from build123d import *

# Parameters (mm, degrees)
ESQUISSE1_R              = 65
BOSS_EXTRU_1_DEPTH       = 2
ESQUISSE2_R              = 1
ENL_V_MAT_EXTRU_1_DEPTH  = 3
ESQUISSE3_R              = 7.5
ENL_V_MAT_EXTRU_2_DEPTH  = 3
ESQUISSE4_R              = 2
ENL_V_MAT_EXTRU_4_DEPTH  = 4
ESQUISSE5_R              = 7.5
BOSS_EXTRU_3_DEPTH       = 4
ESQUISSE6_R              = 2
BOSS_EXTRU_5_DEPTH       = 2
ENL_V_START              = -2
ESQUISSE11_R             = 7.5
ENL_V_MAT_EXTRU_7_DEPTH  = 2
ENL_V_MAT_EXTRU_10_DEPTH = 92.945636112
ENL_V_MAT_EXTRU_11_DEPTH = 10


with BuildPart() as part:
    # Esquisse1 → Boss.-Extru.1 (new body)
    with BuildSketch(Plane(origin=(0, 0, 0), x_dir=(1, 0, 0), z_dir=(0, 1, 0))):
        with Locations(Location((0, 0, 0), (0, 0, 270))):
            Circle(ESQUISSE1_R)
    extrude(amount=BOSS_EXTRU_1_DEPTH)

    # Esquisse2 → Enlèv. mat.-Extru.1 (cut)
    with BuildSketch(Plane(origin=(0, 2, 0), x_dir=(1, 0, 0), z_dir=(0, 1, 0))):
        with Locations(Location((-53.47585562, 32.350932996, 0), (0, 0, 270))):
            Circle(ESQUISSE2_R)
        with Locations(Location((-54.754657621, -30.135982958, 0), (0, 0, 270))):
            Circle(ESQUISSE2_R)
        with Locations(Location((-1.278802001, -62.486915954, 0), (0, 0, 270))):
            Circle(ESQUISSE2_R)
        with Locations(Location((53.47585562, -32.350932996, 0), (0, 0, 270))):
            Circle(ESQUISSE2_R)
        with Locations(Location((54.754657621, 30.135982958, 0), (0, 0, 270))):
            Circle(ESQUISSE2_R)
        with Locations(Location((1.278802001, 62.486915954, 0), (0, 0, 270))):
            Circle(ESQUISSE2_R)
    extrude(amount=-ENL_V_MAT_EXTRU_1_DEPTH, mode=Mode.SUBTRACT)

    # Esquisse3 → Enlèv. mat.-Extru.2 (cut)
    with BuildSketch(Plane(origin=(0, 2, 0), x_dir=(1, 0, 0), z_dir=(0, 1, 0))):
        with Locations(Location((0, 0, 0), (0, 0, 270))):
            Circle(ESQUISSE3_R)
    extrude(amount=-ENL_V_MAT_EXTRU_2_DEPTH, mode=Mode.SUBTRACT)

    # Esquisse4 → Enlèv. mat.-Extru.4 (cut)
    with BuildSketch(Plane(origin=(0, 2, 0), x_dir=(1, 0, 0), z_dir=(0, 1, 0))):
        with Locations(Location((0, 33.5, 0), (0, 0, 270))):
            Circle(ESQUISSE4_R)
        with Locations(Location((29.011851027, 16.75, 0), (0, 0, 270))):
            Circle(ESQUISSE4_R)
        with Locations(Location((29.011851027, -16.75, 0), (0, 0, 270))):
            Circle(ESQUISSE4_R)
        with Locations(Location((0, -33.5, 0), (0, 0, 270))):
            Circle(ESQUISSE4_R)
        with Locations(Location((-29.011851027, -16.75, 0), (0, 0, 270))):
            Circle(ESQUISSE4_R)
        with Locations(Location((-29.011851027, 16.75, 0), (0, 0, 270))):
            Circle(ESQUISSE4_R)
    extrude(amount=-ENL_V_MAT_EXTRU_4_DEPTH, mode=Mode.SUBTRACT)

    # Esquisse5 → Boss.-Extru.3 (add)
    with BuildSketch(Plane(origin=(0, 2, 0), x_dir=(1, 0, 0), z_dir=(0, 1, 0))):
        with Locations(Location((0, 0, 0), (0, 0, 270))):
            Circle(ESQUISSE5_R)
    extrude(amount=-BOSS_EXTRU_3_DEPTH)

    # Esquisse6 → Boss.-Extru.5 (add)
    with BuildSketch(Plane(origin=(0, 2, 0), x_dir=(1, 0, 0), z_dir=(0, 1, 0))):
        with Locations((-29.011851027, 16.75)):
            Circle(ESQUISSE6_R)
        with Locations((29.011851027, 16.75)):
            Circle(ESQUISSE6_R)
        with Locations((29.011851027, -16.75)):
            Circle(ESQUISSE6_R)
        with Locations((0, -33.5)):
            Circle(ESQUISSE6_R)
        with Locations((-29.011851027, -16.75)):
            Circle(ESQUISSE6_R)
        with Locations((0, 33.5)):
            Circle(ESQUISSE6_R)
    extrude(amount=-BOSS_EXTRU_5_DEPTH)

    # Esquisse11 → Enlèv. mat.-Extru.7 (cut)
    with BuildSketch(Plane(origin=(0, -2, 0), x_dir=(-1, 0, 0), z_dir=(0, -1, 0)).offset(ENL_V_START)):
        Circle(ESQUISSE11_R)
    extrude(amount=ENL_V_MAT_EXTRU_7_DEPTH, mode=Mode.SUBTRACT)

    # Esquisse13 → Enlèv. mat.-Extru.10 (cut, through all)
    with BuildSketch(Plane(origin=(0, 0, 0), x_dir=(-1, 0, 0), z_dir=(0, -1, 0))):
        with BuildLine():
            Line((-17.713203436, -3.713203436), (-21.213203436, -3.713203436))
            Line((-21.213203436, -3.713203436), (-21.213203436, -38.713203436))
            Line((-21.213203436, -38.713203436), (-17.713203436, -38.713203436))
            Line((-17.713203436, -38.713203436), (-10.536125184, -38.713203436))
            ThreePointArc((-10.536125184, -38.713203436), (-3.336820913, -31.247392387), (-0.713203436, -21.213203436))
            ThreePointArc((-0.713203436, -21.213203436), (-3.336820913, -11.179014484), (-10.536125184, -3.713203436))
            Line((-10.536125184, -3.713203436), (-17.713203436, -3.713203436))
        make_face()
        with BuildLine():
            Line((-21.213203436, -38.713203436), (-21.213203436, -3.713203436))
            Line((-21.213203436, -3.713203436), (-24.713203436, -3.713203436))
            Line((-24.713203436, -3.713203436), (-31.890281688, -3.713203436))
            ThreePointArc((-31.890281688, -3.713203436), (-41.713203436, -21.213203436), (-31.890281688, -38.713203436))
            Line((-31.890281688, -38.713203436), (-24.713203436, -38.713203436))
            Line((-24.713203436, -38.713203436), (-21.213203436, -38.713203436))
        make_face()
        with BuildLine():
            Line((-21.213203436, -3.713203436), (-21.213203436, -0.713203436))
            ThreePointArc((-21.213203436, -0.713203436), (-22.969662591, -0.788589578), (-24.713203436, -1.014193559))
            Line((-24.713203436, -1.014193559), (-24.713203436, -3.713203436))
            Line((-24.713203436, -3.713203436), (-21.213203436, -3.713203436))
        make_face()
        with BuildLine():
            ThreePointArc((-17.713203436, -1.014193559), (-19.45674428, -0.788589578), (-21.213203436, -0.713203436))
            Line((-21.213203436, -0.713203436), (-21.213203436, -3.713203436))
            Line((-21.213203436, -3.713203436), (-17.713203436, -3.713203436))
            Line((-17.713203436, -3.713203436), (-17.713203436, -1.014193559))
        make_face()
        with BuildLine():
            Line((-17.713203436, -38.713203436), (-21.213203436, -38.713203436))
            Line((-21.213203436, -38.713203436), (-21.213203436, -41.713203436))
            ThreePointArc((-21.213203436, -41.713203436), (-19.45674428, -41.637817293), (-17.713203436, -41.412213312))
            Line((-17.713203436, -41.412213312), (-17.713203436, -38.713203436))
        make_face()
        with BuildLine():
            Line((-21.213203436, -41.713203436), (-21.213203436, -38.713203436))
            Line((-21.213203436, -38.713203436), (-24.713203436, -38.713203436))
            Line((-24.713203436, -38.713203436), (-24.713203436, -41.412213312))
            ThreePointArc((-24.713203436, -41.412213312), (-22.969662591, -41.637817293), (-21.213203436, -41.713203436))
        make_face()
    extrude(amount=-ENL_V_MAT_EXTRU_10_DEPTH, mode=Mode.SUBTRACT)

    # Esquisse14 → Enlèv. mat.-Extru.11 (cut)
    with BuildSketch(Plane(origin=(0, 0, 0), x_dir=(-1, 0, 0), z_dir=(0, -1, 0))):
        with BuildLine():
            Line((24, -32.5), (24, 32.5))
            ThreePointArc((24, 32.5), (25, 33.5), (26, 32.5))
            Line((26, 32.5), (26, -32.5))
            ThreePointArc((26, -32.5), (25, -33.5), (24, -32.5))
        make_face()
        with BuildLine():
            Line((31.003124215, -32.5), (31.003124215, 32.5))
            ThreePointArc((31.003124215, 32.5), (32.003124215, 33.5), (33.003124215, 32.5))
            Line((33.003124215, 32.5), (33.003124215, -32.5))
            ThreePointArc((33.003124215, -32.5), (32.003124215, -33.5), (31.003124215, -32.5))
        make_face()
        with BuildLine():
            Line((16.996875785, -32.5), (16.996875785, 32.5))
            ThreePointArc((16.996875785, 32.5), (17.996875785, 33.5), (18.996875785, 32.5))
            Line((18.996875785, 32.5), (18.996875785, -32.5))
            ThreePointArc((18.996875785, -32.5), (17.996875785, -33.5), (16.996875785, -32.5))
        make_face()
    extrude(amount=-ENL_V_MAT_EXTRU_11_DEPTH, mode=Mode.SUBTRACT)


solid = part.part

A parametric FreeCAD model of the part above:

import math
import FreeCAD as App
import Part
import Sketcher
Q = App.Units.Quantity

doc = App.newDocument("Part")
body = doc.addObject("PartDesign::Body", "Body")

# Sketch on XZ plane
sketch1 = doc.addObject("Sketcher::SketchObject", "Sketch")
body.addObject(sketch1)
sketch1.AttachmentSupport = (doc.XZ_Plane, [""])
sketch1.MapMode = "FlatFace"
sketch1.addGeometry(Part.Circle(App.Vector(0, 0, 0), App.Vector(0, 0, 1), 65), False)
sketch1.addConstraint(Sketcher.Constraint("Coincident", 0, 3, -1, 1))
sketch1.addConstraint(Sketcher.Constraint("Diameter", 0, Q("130 mm")))
pad1 = doc.addObject("PartDesign::Pad", "Pad")
body.addObject(pad1)
pad1.Profile = sketch1
pad1.Length = 2
pad1.Reversed = True

# Sketch on XZ plane
sketch2 = doc.addObject("Sketcher::SketchObject", "Sketch001")
body.addObject(sketch2)
sketch2.AttachmentSupport = (doc.XZ_Plane, [""])
sketch2.MapMode = "FlatFace"
sketch2.AttachmentOffset = App.Placement(App.Vector(0, 0, -2), App.Rotation())
sketch2.addGeometry(Part.Circle(App.Vector(-53.475856, -32.350933, 0), App.Vector(0, 0, 1), 1), False)
sketch2.addGeometry(Part.Circle(App.Vector(-54.754658, 30.135983, 0), App.Vector(0, 0, 1), 1), False)
sketch2.addGeometry(Part.Circle(App.Vector(-1.278802, 62.486916, 0), App.Vector(0, 0, 1), 1), False)
sketch2.addGeometry(Part.Circle(App.Vector(53.475856, 32.350933, 0), App.Vector(0, 0, 1), 1), False)
sketch2.addGeometry(Part.Circle(App.Vector(54.754658, -30.135983, 0), App.Vector(0, 0, 1), 1), False)
sketch2.addGeometry(Part.Circle(App.Vector(1.278802, -62.486916, 0), App.Vector(0, 0, 1), 1), False)
sketch2.addConstraint(Sketcher.Constraint("Equal", 0, 1))
sketch2.addConstraint(Sketcher.Constraint("Equal", 1, 2))
sketch2.addConstraint(Sketcher.Constraint("Equal", 2, 3))
sketch2.addConstraint(Sketcher.Constraint("Equal", 3, 4))
sketch2.addConstraint(Sketcher.Constraint("Equal", 4, 5))
sketch2.addConstraint(Sketcher.Constraint("Symmetric", 0, 3, 3, 3, -1, 1))
sketch2.addConstraint(Sketcher.Constraint("Symmetric", 1, 3, 4, 3, -1, 1))
sketch2.addConstraint(Sketcher.Constraint("Symmetric", 2, 3, 5, 3, -1, 1))
sketch2.addConstraint(Sketcher.Constraint("Diameter", 0, Q("2 mm")))
sketch2.addConstraint(Sketcher.Constraint("DistanceY", 4, 3, 2, 3, Q("92.622899 mm")))
sketch2.addConstraint(Sketcher.Constraint("DistanceY", 0, 3, 2, 3, Q("94.837849 mm")))
sketch2.addConstraint(Sketcher.Constraint("DistanceX", 0, 3, 3, 3, Q("106.951711 mm")))
sketch2.addConstraint(Sketcher.Constraint("DistanceX", 2, 3, 4, 3, Q("56.03346 mm")))
sketch2.addConstraint(Sketcher.Constraint("DistanceY", 5, 3, 2, 3, Q("124.973832 mm")))
sketch2.addConstraint(Sketcher.Constraint("DistanceX", 1, 3, -1, 1, Q("54.754658 mm")))
pocket1 = doc.addObject("PartDesign::Pocket", "Pocket")
body.addObject(pocket1)
pocket1.Profile = sketch2
pocket1.Length = 3
pocket1.Reversed = True

# Sketch on XZ plane
sketch3 = doc.addObject("Sketcher::SketchObject", "Sketch002")
body.addObject(sketch3)
sketch3.AttachmentSupport = (doc.XZ_Plane, [""])
sketch3.MapMode = "FlatFace"
sketch3.AttachmentOffset = App.Placement(App.Vector(0, 0, -2), App.Rotation())
sketch3.addGeometry(Part.Circle(App.Vector(0, 0, 0), App.Vector(0, 0, 1), 7.5), False)
sketch3.addConstraint(Sketcher.Constraint("Coincident", 0, 3, -1, 1))
sketch3.addConstraint(Sketcher.Constraint("Diameter", 0, Q("15 mm")))
pocket2 = doc.addObject("PartDesign::Pocket", "Pocket001")
body.addObject(pocket2)
pocket2.Profile = sketch3
pocket2.Length = 3
pocket2.Reversed = True

# Sketch on XZ plane
sketch4 = doc.addObject("Sketcher::SketchObject", "Sketch003")
body.addObject(sketch4)
sketch4.AttachmentSupport = (doc.XZ_Plane, [""])
sketch4.MapMode = "FlatFace"
sketch4.AttachmentOffset = App.Placement(App.Vector(0, 0, -2), App.Rotation())
sketch4.addGeometry(Part.Circle(App.Vector(0, -33.5, 0), App.Vector(0, 0, 1), 2), False)
sketch4.addGeometry(Part.Circle(App.Vector(29.011851, -16.75, 0), App.Vector(0, 0, 1), 2), False)
sketch4.addGeometry(Part.Circle(App.Vector(29.011851, 16.75, 0), App.Vector(0, 0, 1), 2), False)
sketch4.addGeometry(Part.Circle(App.Vector(0, 33.5, 0), App.Vector(0, 0, 1), 2), False)
sketch4.addGeometry(Part.Circle(App.Vector(-29.011851, 16.75, 0), App.Vector(0, 0, 1), 2), False)
sketch4.addGeometry(Part.Circle(App.Vector(-29.011851, -16.75, 0), App.Vector(0, 0, 1), 2), False)
sketch4.addConstraint(Sketcher.Constraint("Equal", 0, 1))
sketch4.addConstraint(Sketcher.Constraint("Equal", 1, 2))
sketch4.addConstraint(Sketcher.Constraint("Equal", 2, 3))
sketch4.addConstraint(Sketcher.Constraint("Equal", 3, 4))
sketch4.addConstraint(Sketcher.Constraint("Equal", 4, 5))
sketch4.addConstraint(Sketcher.Constraint("Symmetric", 0, 3, 3, 3, -1, 1))
sketch4.addConstraint(Sketcher.Constraint("Symmetric", 1, 3, 4, 3, -1, 1))
sketch4.addConstraint(Sketcher.Constraint("Symmetric", 2, 3, 5, 3, -1, 1))
sketch4.addConstraint(Sketcher.Constraint("Symmetric", 2, 3, 4, 3, -2))
sketch4.addConstraint(Sketcher.Constraint("PointOnObject", 0, 3, -2))
sketch4.addConstraint(Sketcher.Constraint("Diameter", 0, Q("4 mm")))
sketch4.addConstraint(Sketcher.Constraint("DistanceY", 0, 3, 3, 3, Q("67 mm")))
sketch4.addConstraint(Sketcher.Constraint("DistanceY", 1, 3, 2, 3, Q("33.5 mm")))
sketch4.addConstraint(Sketcher.Constraint("DistanceX", -1, 1, 1, 3, Q("29.011851 mm")))
pocket3 = doc.addObject("PartDesign::Pocket", "Pocket002")
body.addObject(pocket3)
pocket3.Profile = sketch4
pocket3.Length = 4
pocket3.Reversed = True

# Sketch on XZ plane
sketch5 = doc.addObject("Sketcher::SketchObject", "Sketch004")
body.addObject(sketch5)
sketch5.AttachmentSupport = (doc.XZ_Plane, [""])
sketch5.MapMode = "FlatFace"
sketch5.AttachmentOffset = App.Placement(App.Vector(0, 0, -2), App.Rotation())
sketch5.addGeometry(Part.Circle(App.Vector(0, 0, 0), App.Vector(0, 0, 1), 7.5), False)
sketch5.addConstraint(Sketcher.Constraint("Coincident", 0, 3, -1, 1))
sketch5.addConstraint(Sketcher.Constraint("Diameter", 0, Q("15 mm")))
pad2 = doc.addObject("PartDesign::Pad", "Pad001")
body.addObject(pad2)
pad2.Profile = sketch5
pad2.Length = 4

# Sketch on XZ plane
sketch6 = doc.addObject("Sketcher::SketchObject", "Sketch005")
body.addObject(sketch6)
sketch6.AttachmentSupport = (doc.XZ_Plane, [""])
sketch6.MapMode = "FlatFace"
sketch6.AttachmentOffset = App.Placement(App.Vector(0, 0, -2), App.Rotation())
sketch6.addGeometry(Part.Circle(App.Vector(-29.011851, -16.75, 0), App.Vector(0, 0, 1), 2), False)
sketch6.addGeometry(Part.Circle(App.Vector(29.011851, -16.75, 0), App.Vector(0, 0, 1), 2), False)
sketch6.addGeometry(Part.Circle(App.Vector(29.011851, 16.75, 0), App.Vector(0, 0, 1), 2), False)
sketch6.addGeometry(Part.Circle(App.Vector(0, 33.5, 0), App.Vector(0, 0, 1), 2), False)
sketch6.addGeometry(Part.Circle(App.Vector(-29.011851, 16.75, 0), App.Vector(0, 0, 1), 2), False)
sketch6.addGeometry(Part.Circle(App.Vector(0, -33.5, 0), App.Vector(0, 0, 1), 2), False)
sketch6.addConstraint(Sketcher.Constraint("Equal", 0, 1))
sketch6.addConstraint(Sketcher.Constraint("Equal", 1, 2))
sketch6.addConstraint(Sketcher.Constraint("Equal", 2, 3))
sketch6.addConstraint(Sketcher.Constraint("Equal", 3, 4))
sketch6.addConstraint(Sketcher.Constraint("Equal", 4, 5))
sketch6.addConstraint(Sketcher.Constraint("Symmetric", 0, 3, 2, 3, -1, 1))
sketch6.addConstraint(Sketcher.Constraint("Symmetric", 1, 3, 4, 3, -1, 1))
sketch6.addConstraint(Sketcher.Constraint("Symmetric", 3, 3, 5, 3, -1, 1))
sketch6.addConstraint(Sketcher.Constraint("Symmetric", 0, 3, 1, 3, -2))
sketch6.addConstraint(Sketcher.Constraint("PointOnObject", 3, 3, -2))
sketch6.addConstraint(Sketcher.Constraint("Diameter", 0, Q("4 mm")))
sketch6.addConstraint(Sketcher.Constraint("DistanceY", 5, 3, 3, 3, Q("67 mm")))
sketch6.addConstraint(Sketcher.Constraint("DistanceY", 1, 3, 2, 3, Q("33.5 mm")))
sketch6.addConstraint(Sketcher.Constraint("DistanceX", 0, 3, -1, 1, Q("29.011851 mm")))
pad3 = doc.addObject("PartDesign::Pad", "Pad002")
body.addObject(pad3)
pad3.Profile = sketch6
pad3.Length = 2

# Sketch on XZ plane
sketch7 = doc.addObject("Sketcher::SketchObject", "Sketch006")
body.addObject(sketch7)
sketch7.AttachmentSupport = (doc.XZ_Plane, [""])
sketch7.MapMode = "FlatFace"
sketch7.addGeometry(Part.Circle(App.Vector(0, 0, 0), App.Vector(0, 0, 1), 7.5), False)
sketch7.addConstraint(Sketcher.Constraint("Coincident", 0, 3, -1, 1))
sketch7.addConstraint(Sketcher.Constraint("Diameter", 0, Q("15 mm")))
pocket4 = doc.addObject("PartDesign::Pocket", "Pocket003")
body.addObject(pocket4)
pocket4.Profile = sketch7
pocket4.Length = 2
pocket4.Reversed = True

# Sketch on XZ plane
sketch8 = doc.addObject("Sketcher::SketchObject", "Sketch007")
body.addObject(sketch8)
sketch8.AttachmentSupport = (doc.XZ_Plane, [""])
sketch8.MapMode = "FlatFace"
sketch8.addGeometry(Part.ArcOfCircle(Part.Circle(App.Vector(21.213203, 21.213203, 0), App.Vector(0, 0, 1), 20.5), math.radians(121.38815), math.radians(180)), False)
sketch8.addGeometry(Part.ArcOfCircle(Part.Circle(App.Vector(21.213203, 21.213203, 0), App.Vector(0, 0, 1), 20.5), math.radians(180), math.radians(238.61185)), False)
sketch8.addGeometry(Part.LineSegment(App.Vector(10.536125, 3.713203, 0), App.Vector(17.713203, 3.713203, 0)), False)
sketch8.addGeometry(Part.LineSegment(App.Vector(17.713203, 3.713203, 0), App.Vector(17.713203, 1.014194, 0)), False)
sketch8.addGeometry(Part.ArcOfCircle(Part.Circle(App.Vector(21.213203, 21.213203, 0), App.Vector(0, 0, 1), 20.5), math.radians(-99.830365), math.radians(-90)), False)
sketch8.addGeometry(Part.ArcOfCircle(Part.Circle(App.Vector(21.213203, 21.213203, 0), App.Vector(0, 0, 1), 20.5), math.radians(-90), math.radians(-80.169635)), False)
sketch8.addGeometry(Part.LineSegment(App.Vector(24.713203, 1.014194, 0), App.Vector(24.713203, 3.713203, 0)), False)
sketch8.addGeometry(Part.LineSegment(App.Vector(24.713203, 3.713203, 0), App.Vector(31.890282, 3.713203, 0)), False)
sketch8.addGeometry(Part.ArcOfCircle(Part.Circle(App.Vector(21.213203, 21.213203, 0), App.Vector(0, 0, 1), 20.5), math.radians(-58.61185), math.radians(58.61185)), False)
sketch8.addGeometry(Part.LineSegment(App.Vector(31.890282, 38.713203, 0), App.Vector(24.713203, 38.713203, 0)), False)
sketch8.addGeometry(Part.LineSegment(App.Vector(24.713203, 38.713203, 0), App.Vector(24.713203, 41.412213, 0)), False)
sketch8.addGeometry(Part.ArcOfCircle(Part.Circle(App.Vector(21.213203, 21.213203, 0), App.Vector(0, 0, 1), 20.5), math.radians(80.169635), math.radians(90)), False)
sketch8.addGeometry(Part.ArcOfCircle(Part.Circle(App.Vector(21.213203, 21.213203, 0), App.Vector(0, 0, 1), 20.5), math.radians(90), math.radians(99.830365)), False)
sketch8.addGeometry(Part.LineSegment(App.Vector(17.713203, 41.412213, 0), App.Vector(17.713203, 38.713203, 0)), False)
sketch8.addGeometry(Part.LineSegment(App.Vector(17.713203, 38.713203, 0), App.Vector(10.536125, 38.713203, 0)), False)
sketch8.addConstraint(Sketcher.Constraint("Tangent", 0, 2, 1, 1))
sketch8.addConstraint(Sketcher.Constraint("Coincident", 1, 2, 2, 1))
sketch8.addConstraint(Sketcher.Constraint("Coincident", 2, 2, 3, 1))
sketch8.addConstraint(Sketcher.Constraint("Coincident", 3, 2, 4, 1))
sketch8.addConstraint(Sketcher.Constraint("Tangent", 4, 2, 5, 1))
sketch8.addConstraint(Sketcher.Constraint("Coincident", 5, 2, 6, 1))
sketch8.addConstraint(Sketcher.Constraint("Coincident", 6, 2, 7, 1))
sketch8.addConstraint(Sketcher.Constraint("Coincident", 7, 2, 8, 1))
sketch8.addConstraint(Sketcher.Constraint("Coincident", 8, 2, 9, 1))
sketch8.addConstraint(Sketcher.Constraint("Coincident", 9, 2, 10, 1))
sketch8.addConstraint(Sketcher.Constraint("Coincident", 10, 2, 11, 1))
sketch8.addConstraint(Sketcher.Constraint("Tangent", 11, 2, 12, 1))
sketch8.addConstraint(Sketcher.Constraint("Coincident", 12, 2, 13, 1))
sketch8.addConstraint(Sketcher.Constraint("Coincident", 13, 2, 14, 1))
sketch8.addConstraint(Sketcher.Constraint("Coincident", 14, 2, 0, 1))
sketch8.addConstraint(Sketcher.Constraint("Horizontal", 2))
sketch8.addConstraint(Sketcher.Constraint("Vertical", 3))
sketch8.addConstraint(Sketcher.Constraint("Vertical", 6))
sketch8.addConstraint(Sketcher.Constraint("Horizontal", 7))
sketch8.addConstraint(Sketcher.Constraint("Horizontal", 9))
sketch8.addConstraint(Sketcher.Constraint("Vertical", 10))
sketch8.addConstraint(Sketcher.Constraint("Vertical", 13))
sketch8.addConstraint(Sketcher.Constraint("Horizontal", 14))
sketch8.addConstraint(Sketcher.Constraint("Coincident", 4, 3, 0, 3))
sketch8.addConstraint(Sketcher.Constraint("Coincident", 8, 3, 0, 3))
sketch8.addConstraint(Sketcher.Constraint("Coincident", 11, 3, 0, 3))
sketch8.addConstraint(Sketcher.Constraint("Equal", 0, 1))
sketch8.addConstraint(Sketcher.Constraint("Equal", 1, 4))
sketch8.addConstraint(Sketcher.Constraint("Equal", 4, 5))
sketch8.addConstraint(Sketcher.Constraint("Equal", 5, 8))
sketch8.addConstraint(Sketcher.Constraint("Equal", 8, 11))
sketch8.addConstraint(Sketcher.Constraint("Equal", 11, 12))
sketch8.addConstraint(Sketcher.Constraint("Horizontal", 12, 3, 0, 2))
sketch8.addConstraint(Sketcher.Constraint("Horizontal", 3, 2, 5, 2))
sketch8.addConstraint(Sketcher.Constraint("Horizontal", 2, 2, 6, 2))
sketch8.addConstraint(Sketcher.Constraint("Horizontal", 10, 2, 12, 2))
sketch8.addConstraint(Sketcher.Constraint("Horizontal", 9, 2, 13, 2))
sketch8.addConstraint(Sketcher.Constraint("Vertical", 12, 3, 4, 2))
sketch8.addConstraint(Sketcher.Constraint("Vertical", 7, 2, 8, 2))
sketch8.addConstraint(Sketcher.Constraint("Vertical", 6, 2, 9, 2))
sketch8.addConstraint(Sketcher.Constraint("Vertical", 4, 2, 11, 2))
sketch8.addConstraint(Sketcher.Constraint("Radius", 0, Q("20.5 mm")))
sketch8.addConstraint(Sketcher.Constraint("DistanceY", 4, 2, 2, 2, Q("3 mm")))
sketch8.addConstraint(Sketcher.Constraint("DistanceX", 3, 2, 5, 2, Q("7 mm")))
sketch8.addConstraint(Sketcher.Constraint("DistanceX", -1, 1, 7, 2, Q("31.890282 mm")))
sketch8.addConstraint(Sketcher.Constraint("DistanceY", -1, 1, 0, 3, Q("21.213203 mm")))
pocket5 = doc.addObject("PartDesign::Pocket", "Pocket004")
body.addObject(pocket5)
pocket5.Profile = sketch8
pocket5.Type = "ThroughAll"

# Sketch on XZ plane
sketch9 = doc.addObject("Sketcher::SketchObject", "Sketch008")
body.addObject(sketch9)
sketch9.AttachmentSupport = (doc.XZ_Plane, [""])
sketch9.MapMode = "FlatFace"
sketch9.addGeometry(Part.LineSegment(App.Vector(-24, -32.5, 0), App.Vector(-24, 32.5, 0)), False)
sketch9.addGeometry(Part.ArcOfCircle(Part.Circle(App.Vector(-25, 32.5, 0), App.Vector(0, 0, 1), 1), math.radians(0), math.radians(180)), False)
sketch9.addGeometry(Part.LineSegment(App.Vector(-26, 32.5, 0), App.Vector(-26, -32.5, 0)), False)
sketch9.addGeometry(Part.ArcOfCircle(Part.Circle(App.Vector(-25, -32.5, 0), App.Vector(0, 0, 1), 1), math.radians(180), math.radians(360)), False)
sketch9.addGeometry(Part.LineSegment(App.Vector(-31.003124, -32.5, 0), App.Vector(-31.003124, 32.5, 0)), False)
sketch9.addGeometry(Part.ArcOfCircle(Part.Circle(App.Vector(-32.003124, 32.5, 0), App.Vector(0, 0, 1), 1), math.radians(0), math.radians(180)), False)
sketch9.addGeometry(Part.LineSegment(App.Vector(-33.003124, 32.5, 0), App.Vector(-33.003124, -32.5, 0)), False)
sketch9.addGeometry(Part.ArcOfCircle(Part.Circle(App.Vector(-32.003124, -32.5, 0), App.Vector(0, 0, 1), 1), math.radians(180), math.radians(360)), False)
sketch9.addGeometry(Part.LineSegment(App.Vector(-16.996876, -32.5, 0), App.Vector(-16.996876, 32.5, 0)), False)
sketch9.addGeometry(Part.ArcOfCircle(Part.Circle(App.Vector(-17.996876, 32.5, 0), App.Vector(0, 0, 1), 1), math.radians(0), math.radians(180)), False)
sketch9.addGeometry(Part.LineSegment(App.Vector(-18.996876, 32.5, 0), App.Vector(-18.996876, -32.5, 0)), False)
sketch9.addGeometry(Part.ArcOfCircle(Part.Circle(App.Vector(-17.996876, -32.5, 0), App.Vector(0, 0, 1), 1), math.radians(180), math.radians(360)), False)
sketch9.addConstraint(Sketcher.Constraint("Tangent", 0, 2, 1, 1))
sketch9.addConstraint(Sketcher.Constraint("Tangent", 1, 2, 2, 1))
sketch9.addConstraint(Sketcher.Constraint("Tangent", 2, 2, 3, 1))
sketch9.addConstraint(Sketcher.Constraint("Tangent", 3, 2, 0, 1))
sketch9.addConstraint(Sketcher.Constraint("Tangent", 4, 2, 5, 1))
sketch9.addConstraint(Sketcher.Constraint("Tangent", 5, 2, 6, 1))
sketch9.addConstraint(Sketcher.Constraint("Tangent", 6, 2, 7, 1))
sketch9.addConstraint(Sketcher.Constraint("Tangent", 7, 2, 4, 1))
sketch9.addConstraint(Sketcher.Constraint("Tangent", 8, 2, 9, 1))
sketch9.addConstraint(Sketcher.Constraint("Tangent", 9, 2, 10, 1))
sketch9.addConstraint(Sketcher.Constraint("Tangent", 10, 2, 11, 1))
sketch9.addConstraint(Sketcher.Constraint("Tangent", 11, 2, 8, 1))
sketch9.addConstraint(Sketcher.Constraint("Vertical", 0))
sketch9.addConstraint(Sketcher.Constraint("Vertical", 2))
sketch9.addConstraint(Sketcher.Constraint("Vertical", 4))
sketch9.addConstraint(Sketcher.Constraint("Vertical", 6))
sketch9.addConstraint(Sketcher.Constraint("Vertical", 8))
sketch9.addConstraint(Sketcher.Constraint("Vertical", 10))
sketch9.addConstraint(Sketcher.Constraint("Equal", 3, 5))
sketch9.addConstraint(Sketcher.Constraint("Equal", 7, 9))
sketch9.addConstraint(Sketcher.Constraint("Horizontal", 1, 3, 5, 3))
sketch9.addConstraint(Sketcher.Constraint("Horizontal", 3, 3, 7, 3))
sketch9.addConstraint(Sketcher.Constraint("Horizontal", 5, 3, 9, 3))
sketch9.addConstraint(Sketcher.Constraint("Horizontal", 7, 3, 11, 3))
sketch9.addConstraint(Sketcher.Constraint("Radius", 1, Q("1 mm")))
sketch9.addConstraint(Sketcher.Constraint("DistanceY", 0, 1, 0, 2, Q("65 mm")))
sketch9.addConstraint(Sketcher.Constraint("DistanceX", 1, 3, -1, 1, Q("25 mm")))
sketch9.addConstraint(Sketcher.Constraint("DistanceY", -1, 1, 1, 3, Q("32.5 mm")))
sketch9.addConstraint(Sketcher.Constraint("DistanceX", 5, 3, 9, 3, Q("14.006248 mm")))
sketch9.addConstraint(Sketcher.Constraint("DistanceX", 5, 3, -1, 1, Q("32.003124 mm")))
pocket6 = doc.addObject("PartDesign::Pocket", "Pocket005")
body.addObject(pocket6)
pocket6.Profile = sketch9
pocket6.Length = 10

doc.recompute()
